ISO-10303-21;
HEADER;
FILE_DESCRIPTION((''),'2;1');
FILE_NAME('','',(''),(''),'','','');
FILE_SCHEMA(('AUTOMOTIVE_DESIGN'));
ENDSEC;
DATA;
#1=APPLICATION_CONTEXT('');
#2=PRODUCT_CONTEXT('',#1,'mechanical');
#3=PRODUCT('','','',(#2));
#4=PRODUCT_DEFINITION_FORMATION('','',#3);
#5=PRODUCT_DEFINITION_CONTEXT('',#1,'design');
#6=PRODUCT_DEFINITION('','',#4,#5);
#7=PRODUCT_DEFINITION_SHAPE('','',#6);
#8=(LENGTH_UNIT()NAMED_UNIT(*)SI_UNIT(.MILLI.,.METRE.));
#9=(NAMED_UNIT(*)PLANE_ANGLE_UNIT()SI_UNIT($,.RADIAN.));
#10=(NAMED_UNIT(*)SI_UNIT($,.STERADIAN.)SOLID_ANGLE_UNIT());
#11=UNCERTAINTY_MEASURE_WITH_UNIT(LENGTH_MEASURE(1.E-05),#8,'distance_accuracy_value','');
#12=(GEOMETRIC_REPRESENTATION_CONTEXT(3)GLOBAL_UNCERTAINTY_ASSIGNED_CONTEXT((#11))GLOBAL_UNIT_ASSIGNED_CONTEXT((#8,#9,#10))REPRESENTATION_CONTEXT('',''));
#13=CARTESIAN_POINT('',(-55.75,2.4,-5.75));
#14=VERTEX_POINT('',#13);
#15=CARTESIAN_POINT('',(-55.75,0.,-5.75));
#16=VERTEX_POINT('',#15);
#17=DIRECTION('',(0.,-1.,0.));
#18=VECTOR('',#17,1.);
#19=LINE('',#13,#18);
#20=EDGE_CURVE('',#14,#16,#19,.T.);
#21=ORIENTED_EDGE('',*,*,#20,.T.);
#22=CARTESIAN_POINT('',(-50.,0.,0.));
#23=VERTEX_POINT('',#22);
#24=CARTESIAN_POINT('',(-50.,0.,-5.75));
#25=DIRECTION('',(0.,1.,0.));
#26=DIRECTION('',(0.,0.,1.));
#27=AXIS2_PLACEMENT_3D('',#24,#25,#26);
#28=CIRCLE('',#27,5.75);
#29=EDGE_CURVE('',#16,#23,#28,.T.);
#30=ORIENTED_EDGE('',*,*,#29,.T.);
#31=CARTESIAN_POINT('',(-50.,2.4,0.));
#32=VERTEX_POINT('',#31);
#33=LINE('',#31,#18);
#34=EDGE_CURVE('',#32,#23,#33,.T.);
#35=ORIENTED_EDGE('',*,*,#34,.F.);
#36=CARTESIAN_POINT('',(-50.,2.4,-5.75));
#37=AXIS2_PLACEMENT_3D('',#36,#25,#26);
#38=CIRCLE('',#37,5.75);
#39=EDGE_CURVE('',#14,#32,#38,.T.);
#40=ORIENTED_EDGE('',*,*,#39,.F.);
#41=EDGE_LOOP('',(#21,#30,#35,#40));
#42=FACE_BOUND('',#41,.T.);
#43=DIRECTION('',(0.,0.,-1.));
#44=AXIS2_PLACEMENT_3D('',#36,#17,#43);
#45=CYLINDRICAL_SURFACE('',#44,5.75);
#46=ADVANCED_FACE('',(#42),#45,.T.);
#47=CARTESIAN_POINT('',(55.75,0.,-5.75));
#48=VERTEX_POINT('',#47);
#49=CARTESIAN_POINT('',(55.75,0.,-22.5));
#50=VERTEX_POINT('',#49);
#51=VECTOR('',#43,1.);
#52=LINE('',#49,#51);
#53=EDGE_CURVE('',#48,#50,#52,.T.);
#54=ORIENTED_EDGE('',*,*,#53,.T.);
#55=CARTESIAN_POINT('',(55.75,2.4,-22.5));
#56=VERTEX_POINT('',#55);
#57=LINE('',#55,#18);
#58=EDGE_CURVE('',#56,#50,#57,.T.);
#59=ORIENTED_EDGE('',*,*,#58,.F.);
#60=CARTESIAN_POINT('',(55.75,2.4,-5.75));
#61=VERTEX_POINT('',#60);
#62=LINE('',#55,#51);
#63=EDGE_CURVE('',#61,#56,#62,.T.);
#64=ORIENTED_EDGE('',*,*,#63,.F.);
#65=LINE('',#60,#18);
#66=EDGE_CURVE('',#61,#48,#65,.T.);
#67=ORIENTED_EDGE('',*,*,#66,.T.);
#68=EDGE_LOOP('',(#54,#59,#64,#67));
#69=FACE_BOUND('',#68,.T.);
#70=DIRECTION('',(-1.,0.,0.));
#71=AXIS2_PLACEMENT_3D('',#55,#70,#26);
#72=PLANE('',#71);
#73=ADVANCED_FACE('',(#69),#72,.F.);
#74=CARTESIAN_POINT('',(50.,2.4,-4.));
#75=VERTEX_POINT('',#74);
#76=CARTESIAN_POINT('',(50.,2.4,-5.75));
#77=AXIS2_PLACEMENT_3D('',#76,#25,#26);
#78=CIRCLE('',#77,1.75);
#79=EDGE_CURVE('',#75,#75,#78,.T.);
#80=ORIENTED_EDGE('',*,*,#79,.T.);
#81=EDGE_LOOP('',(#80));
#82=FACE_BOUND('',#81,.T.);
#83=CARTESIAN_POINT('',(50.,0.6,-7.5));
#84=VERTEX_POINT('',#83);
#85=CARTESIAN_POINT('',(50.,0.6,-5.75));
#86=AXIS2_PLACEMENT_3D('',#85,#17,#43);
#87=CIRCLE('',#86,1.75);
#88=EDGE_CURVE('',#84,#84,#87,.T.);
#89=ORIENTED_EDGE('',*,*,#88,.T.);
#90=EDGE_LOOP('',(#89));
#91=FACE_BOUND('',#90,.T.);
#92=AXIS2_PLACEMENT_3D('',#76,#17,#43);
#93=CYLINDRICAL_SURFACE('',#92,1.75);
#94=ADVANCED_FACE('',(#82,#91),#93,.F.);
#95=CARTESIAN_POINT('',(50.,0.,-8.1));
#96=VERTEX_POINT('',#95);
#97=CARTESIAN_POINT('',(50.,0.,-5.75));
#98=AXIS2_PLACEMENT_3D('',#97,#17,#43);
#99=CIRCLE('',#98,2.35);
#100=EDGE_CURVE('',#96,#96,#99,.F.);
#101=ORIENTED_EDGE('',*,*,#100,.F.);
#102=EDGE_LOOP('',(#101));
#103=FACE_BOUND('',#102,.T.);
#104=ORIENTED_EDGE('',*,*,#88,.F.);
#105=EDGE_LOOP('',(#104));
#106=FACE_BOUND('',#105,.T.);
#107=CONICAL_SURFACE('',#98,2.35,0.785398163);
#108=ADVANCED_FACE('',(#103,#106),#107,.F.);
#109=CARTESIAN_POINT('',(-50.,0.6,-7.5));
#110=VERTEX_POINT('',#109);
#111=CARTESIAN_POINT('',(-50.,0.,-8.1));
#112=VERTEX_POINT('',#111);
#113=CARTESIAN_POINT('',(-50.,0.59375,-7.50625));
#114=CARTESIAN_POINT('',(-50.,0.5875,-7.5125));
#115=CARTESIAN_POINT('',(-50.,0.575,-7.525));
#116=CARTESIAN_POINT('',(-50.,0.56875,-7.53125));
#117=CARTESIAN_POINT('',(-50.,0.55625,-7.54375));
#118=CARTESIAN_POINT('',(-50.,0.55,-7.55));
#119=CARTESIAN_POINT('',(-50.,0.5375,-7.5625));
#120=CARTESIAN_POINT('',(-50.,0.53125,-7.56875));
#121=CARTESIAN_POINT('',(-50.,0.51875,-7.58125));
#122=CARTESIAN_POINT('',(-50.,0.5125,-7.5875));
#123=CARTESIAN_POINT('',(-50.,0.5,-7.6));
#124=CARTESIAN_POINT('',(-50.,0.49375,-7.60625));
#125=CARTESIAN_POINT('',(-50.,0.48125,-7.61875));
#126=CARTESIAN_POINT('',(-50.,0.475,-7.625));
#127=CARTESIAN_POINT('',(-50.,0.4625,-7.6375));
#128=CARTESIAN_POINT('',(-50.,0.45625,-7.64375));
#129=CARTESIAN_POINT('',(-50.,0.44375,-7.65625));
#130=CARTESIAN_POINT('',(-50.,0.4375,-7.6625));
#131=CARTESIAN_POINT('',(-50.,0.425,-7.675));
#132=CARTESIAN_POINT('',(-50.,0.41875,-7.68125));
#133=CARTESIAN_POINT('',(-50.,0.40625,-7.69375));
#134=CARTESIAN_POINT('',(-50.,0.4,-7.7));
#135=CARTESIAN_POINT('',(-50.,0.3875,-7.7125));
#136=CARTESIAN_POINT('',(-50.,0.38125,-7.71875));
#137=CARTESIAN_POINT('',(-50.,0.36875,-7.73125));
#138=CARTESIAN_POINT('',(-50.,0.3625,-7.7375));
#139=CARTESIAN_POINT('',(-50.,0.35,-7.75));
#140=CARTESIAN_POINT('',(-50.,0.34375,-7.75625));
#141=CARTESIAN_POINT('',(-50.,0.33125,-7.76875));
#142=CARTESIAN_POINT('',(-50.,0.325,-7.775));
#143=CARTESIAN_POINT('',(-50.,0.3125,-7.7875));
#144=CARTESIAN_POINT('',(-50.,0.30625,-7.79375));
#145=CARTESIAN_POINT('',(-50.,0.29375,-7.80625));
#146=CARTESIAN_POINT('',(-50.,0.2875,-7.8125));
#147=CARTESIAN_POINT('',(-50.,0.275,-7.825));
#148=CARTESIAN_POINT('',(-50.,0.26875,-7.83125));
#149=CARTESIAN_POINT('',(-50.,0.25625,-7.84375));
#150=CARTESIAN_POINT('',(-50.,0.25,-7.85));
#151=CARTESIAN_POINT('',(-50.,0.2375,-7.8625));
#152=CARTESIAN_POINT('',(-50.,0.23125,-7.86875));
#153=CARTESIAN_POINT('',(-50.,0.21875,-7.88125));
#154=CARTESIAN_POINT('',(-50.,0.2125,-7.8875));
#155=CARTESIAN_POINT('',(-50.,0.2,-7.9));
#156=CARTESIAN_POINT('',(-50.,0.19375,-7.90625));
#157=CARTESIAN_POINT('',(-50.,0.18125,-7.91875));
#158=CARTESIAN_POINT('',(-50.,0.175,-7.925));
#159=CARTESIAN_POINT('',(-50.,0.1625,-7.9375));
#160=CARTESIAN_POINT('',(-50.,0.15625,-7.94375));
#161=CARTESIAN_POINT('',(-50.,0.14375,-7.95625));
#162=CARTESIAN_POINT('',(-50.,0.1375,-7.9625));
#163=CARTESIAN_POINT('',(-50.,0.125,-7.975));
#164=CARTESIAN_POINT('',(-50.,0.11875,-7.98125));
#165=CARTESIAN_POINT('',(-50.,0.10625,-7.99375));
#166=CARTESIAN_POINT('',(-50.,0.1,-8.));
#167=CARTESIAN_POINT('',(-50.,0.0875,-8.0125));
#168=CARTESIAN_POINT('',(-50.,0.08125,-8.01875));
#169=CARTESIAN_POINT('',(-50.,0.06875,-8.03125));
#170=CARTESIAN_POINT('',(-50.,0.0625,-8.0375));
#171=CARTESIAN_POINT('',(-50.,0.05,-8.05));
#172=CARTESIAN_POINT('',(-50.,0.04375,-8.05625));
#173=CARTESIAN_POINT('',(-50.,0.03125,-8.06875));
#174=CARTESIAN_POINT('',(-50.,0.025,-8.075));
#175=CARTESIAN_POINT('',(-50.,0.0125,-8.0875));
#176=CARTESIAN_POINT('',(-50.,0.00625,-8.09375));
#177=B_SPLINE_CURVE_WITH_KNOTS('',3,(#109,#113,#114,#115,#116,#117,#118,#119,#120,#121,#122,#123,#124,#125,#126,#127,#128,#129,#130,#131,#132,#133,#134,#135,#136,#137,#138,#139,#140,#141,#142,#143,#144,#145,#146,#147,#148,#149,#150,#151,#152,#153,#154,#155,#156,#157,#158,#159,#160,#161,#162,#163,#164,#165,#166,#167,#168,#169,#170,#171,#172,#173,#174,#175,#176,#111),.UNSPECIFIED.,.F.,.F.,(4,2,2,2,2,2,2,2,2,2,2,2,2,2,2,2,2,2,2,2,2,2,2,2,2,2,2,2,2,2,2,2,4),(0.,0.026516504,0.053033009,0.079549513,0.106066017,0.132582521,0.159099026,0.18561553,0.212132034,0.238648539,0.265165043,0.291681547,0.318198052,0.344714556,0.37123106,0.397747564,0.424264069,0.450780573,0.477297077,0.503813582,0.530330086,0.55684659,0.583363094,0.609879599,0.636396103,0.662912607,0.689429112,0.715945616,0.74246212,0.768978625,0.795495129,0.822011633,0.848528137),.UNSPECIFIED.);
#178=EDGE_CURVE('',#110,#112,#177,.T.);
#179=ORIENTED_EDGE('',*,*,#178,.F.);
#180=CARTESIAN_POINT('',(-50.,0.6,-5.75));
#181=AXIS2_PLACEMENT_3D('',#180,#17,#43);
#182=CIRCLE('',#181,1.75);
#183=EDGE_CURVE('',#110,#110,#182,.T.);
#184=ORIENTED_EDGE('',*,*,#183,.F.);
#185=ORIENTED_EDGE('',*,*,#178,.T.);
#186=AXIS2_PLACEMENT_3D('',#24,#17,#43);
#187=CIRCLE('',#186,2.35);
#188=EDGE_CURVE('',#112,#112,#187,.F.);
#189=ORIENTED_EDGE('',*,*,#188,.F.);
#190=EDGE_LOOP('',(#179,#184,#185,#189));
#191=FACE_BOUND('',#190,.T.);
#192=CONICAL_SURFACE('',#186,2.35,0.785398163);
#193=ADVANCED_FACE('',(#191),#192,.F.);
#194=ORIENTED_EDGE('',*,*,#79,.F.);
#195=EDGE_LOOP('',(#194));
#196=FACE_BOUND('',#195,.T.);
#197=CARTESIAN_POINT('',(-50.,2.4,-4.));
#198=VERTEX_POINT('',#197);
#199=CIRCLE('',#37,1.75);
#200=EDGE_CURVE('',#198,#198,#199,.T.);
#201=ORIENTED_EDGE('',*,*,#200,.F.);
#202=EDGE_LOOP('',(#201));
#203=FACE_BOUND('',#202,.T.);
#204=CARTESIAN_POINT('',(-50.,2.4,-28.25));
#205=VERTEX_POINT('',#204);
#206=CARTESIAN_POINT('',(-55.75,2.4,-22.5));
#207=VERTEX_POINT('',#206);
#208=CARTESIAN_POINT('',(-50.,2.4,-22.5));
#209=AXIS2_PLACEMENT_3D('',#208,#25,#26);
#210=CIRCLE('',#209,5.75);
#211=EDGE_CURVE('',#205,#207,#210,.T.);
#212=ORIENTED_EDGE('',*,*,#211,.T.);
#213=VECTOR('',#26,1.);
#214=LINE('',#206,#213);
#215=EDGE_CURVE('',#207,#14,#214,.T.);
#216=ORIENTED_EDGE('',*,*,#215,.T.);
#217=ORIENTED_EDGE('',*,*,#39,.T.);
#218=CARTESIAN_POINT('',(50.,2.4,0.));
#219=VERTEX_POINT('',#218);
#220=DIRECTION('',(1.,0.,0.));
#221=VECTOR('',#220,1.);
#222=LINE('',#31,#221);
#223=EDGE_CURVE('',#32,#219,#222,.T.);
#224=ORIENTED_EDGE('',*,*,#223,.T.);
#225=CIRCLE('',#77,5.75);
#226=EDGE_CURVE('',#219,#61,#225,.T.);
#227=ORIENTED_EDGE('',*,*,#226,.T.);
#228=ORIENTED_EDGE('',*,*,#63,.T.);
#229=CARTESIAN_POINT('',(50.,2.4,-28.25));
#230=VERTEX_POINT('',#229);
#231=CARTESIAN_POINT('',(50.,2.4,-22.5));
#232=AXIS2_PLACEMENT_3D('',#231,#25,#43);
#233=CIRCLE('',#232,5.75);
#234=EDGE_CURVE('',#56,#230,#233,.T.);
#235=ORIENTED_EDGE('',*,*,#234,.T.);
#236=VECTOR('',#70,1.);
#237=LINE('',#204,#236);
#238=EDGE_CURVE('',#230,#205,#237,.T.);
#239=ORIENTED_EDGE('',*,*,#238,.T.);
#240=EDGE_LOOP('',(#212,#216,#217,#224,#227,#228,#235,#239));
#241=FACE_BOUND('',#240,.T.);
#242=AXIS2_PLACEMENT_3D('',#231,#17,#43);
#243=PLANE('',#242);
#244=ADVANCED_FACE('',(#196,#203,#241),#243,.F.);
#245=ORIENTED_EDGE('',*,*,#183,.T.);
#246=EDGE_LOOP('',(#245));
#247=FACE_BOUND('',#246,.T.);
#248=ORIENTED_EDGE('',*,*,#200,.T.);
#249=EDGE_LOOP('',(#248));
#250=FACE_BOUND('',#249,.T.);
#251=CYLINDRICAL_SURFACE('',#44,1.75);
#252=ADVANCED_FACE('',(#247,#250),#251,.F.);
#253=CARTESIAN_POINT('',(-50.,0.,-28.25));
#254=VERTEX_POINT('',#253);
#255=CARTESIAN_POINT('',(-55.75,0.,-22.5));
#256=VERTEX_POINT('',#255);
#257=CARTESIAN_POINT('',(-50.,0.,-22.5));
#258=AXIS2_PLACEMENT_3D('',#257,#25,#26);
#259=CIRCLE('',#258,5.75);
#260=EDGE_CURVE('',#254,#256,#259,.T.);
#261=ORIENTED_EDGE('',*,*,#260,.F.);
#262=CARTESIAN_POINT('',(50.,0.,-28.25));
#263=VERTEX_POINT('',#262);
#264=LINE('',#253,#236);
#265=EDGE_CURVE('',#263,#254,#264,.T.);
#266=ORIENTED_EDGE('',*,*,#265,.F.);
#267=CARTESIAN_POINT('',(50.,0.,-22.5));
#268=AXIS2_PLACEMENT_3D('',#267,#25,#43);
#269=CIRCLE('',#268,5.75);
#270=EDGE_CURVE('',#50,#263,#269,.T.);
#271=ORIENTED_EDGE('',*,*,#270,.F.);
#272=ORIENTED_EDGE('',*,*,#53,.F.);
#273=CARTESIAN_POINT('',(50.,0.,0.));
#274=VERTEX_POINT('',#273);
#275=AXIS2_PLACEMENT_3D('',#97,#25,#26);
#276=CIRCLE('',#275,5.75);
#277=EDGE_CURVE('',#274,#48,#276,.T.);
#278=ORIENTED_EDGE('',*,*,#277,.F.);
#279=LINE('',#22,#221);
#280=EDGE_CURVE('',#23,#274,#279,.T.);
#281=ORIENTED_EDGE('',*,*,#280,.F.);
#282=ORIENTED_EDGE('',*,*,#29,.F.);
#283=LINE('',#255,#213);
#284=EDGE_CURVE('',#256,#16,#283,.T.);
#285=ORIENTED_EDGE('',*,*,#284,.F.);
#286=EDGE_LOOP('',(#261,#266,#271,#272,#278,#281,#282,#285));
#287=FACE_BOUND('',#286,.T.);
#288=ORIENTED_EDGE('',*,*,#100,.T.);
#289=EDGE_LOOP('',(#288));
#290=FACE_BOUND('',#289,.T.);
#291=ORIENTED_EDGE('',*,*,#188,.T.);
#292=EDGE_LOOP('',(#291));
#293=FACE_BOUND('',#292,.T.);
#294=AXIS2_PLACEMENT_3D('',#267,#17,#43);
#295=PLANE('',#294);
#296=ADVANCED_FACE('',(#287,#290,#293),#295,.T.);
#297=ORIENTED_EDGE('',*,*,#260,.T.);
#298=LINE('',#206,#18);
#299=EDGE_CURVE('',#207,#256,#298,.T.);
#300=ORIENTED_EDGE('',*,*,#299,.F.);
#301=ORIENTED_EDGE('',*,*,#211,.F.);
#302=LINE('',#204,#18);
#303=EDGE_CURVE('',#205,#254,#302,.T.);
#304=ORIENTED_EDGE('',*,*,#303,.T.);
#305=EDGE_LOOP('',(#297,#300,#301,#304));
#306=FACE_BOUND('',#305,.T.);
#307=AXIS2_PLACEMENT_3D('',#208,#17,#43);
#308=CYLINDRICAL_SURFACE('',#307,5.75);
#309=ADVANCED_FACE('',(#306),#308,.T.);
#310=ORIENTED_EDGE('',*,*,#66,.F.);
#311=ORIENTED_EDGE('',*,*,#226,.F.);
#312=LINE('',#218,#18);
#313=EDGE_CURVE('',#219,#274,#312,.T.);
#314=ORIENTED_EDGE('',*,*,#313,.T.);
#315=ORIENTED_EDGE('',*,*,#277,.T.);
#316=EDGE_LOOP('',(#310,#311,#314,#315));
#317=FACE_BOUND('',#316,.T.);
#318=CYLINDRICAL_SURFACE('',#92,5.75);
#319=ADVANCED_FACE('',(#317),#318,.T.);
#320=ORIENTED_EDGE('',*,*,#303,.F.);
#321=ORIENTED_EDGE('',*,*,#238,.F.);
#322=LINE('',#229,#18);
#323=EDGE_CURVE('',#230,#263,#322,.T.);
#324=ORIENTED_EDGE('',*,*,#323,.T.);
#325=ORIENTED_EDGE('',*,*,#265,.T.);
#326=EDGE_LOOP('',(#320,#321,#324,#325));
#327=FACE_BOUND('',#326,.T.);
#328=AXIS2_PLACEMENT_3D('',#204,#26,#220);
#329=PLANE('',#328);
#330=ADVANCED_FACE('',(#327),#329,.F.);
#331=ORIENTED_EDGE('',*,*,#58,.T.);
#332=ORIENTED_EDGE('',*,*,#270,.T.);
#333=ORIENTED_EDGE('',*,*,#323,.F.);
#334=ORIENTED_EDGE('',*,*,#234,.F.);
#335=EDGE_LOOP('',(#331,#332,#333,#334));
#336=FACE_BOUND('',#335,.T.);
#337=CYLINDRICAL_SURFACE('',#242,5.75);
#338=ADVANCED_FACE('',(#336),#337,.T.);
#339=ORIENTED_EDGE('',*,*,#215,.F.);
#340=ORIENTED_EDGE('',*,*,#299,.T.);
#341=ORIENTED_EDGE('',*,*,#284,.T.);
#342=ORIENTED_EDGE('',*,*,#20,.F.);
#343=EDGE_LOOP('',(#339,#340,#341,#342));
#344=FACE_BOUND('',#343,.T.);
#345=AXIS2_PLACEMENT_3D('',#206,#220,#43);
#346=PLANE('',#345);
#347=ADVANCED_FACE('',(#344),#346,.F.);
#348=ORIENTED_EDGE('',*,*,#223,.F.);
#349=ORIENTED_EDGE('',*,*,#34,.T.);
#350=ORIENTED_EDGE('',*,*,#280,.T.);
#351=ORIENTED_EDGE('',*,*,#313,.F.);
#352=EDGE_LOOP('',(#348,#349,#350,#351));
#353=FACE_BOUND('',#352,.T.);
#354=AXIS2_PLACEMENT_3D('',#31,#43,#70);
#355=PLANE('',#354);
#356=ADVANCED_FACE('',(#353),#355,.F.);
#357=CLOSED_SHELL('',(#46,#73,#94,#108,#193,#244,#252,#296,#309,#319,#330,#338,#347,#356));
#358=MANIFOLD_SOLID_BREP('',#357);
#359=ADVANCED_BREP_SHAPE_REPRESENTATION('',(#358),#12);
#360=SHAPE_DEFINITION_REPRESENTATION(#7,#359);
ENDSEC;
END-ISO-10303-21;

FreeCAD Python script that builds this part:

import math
import FreeCAD as App
import Part
import Sketcher
from FreeCAD import Vector


def edges_at(feature, points):
    """Names of the edges that pass closest to the given points."""
    edges = feature.Shape.Edges
    near = lambda p: min(range(len(edges)), key=lambda i: edges[i].distToShape(Part.Vertex(*p))[0])
    return sorted({f"Edge{near(p) + 1}" for p in points})

doc = App.newDocument("Part")
body = doc.addObject("PartDesign::Body", "Body")

# Sketch on XZ plane
sketch1 = body.newObject("Sketcher::SketchObject", "Sketch")
sketch1.AttachmentSupport = (doc.getObject("XZ_Plane"), [""])
sketch1.MapMode = "FlatFace"
sketch1.addGeometry(Part.LineSegment(Vector(50, -28.25, 0), Vector(-50, -28.25, 0)), False)
sketch1.addGeometry(Part.ArcOfCircle(Part.Circle(Vector(-50, -22.5, 0), Vector(0, 0, 1), 5.75), math.radians(180), math.radians(270)), False)
sketch1.addGeometry(Part.LineSegment(Vector(-55.75, -22.5, 0), Vector(-55.75, -5.75, 0)), False)
sketch1.addGeometry(Part.ArcOfCircle(Part.Circle(Vector(-50, -5.75, 0), Vector(0, 0, 1), 5.75), math.radians(90), math.radians(180)), False)
sketch1.addGeometry(Part.LineSegment(Vector(-50, 0, 0), Vector(50, 0, 0)), False)
sketch1.addGeometry(Part.ArcOfCircle(Part.Circle(Vector(50, -5.75, 0), Vector(0, 0, 1), 5.75), math.radians(0), math.radians(90)), False)
sketch1.addGeometry(Part.LineSegment(Vector(55.75, -5.75, 0), Vector(55.75, -22.5, 0)), False)
sketch1.addGeometry(Part.ArcOfCircle(Part.Circle(Vector(50, -22.5, 0), Vector(0, 0, 1), 5.75), math.radians(-90), math.radians(0)), False)
sketch1.addGeometry(Part.Circle(Vector(50, -5.75, 0), Vector(0, 0, 1), 1.75), False)
sketch1.addGeometry(Part.Circle(Vector(-50, -5.75, 0), Vector(0, 0, 1), 1.75), False)
sketch1.addConstraint(Sketcher.Constraint("Tangent", 0, 2, 1, 2))
sketch1.addConstraint(Sketcher.Constraint("Tangent", 1, 1, 2, 1))
sketch1.addConstraint(Sketcher.Constraint("Tangent", 2, 2, 3, 2))
sketch1.addConstraint(Sketcher.Constraint("Tangent", 3, 1, 4, 1))
sketch1.addConstraint(Sketcher.Constraint("Tangent", 4, 2, 5, 2))
sketch1.addConstraint(Sketcher.Constraint("Tangent", 5, 1, 6, 1))
sketch1.addConstraint(Sketcher.Constraint("Tangent", 6, 2, 7, 2))
sketch1.addConstraint(Sketcher.Constraint("Tangent", 7, 1, 0, 1))
sketch1.addConstraint(Sketcher.Constraint("Horizontal", 0))
sketch1.addConstraint(Sketcher.Constraint("Vertical", 2))
sketch1.addConstraint(Sketcher.Constraint("Horizontal", 4))
sketch1.addConstraint(Sketcher.Constraint("Vertical", 6))
sketch1.addConstraint(Sketcher.Constraint("Coincident", 8, 3, 5, 3))
sketch1.addConstraint(Sketcher.Constraint("Coincident", 9, 3, 3, 3))
sketch1.addConstraint(Sketcher.Constraint("Equal", 1, 3))
sketch1.addConstraint(Sketcher.Constraint("Equal", 3, 5))
sketch1.addConstraint(Sketcher.Constraint("Equal", 5, 7))
sketch1.addConstraint(Sketcher.Constraint("Equal", 8, 9))
sketch1.addConstraint(Sketcher.Constraint("Symmetric", 3, 1, 4, 2, -1, 1))
sketch1.addConstraint(Sketcher.Constraint("Diameter", 8, 3.5))
sketch1.addConstraint(Sketcher.Constraint("DistanceX", 0, 2, 0, 1, 100.0))
sketch1.addConstraint(Sketcher.Constraint("Radius", 1, 5.75))
sketch1.addConstraint(Sketcher.Constraint("DistanceY", 2, 1, 2, 2, 16.75))
pad1 = body.newObject("PartDesign::Pad", "Pad")
pad1.Profile = sketch1
pad1.Length = 2.4
pad1.Reversed = True
doc.recompute()

chamfer = body.newObject("PartDesign::Chamfer", "Chamfer")
chamfer.Base = (pad1, edges_at(pad1, [(50, 0, -7.5), (-50, 0, -7.5)]))
chamfer.Size = 0.6

doc.recompute()
